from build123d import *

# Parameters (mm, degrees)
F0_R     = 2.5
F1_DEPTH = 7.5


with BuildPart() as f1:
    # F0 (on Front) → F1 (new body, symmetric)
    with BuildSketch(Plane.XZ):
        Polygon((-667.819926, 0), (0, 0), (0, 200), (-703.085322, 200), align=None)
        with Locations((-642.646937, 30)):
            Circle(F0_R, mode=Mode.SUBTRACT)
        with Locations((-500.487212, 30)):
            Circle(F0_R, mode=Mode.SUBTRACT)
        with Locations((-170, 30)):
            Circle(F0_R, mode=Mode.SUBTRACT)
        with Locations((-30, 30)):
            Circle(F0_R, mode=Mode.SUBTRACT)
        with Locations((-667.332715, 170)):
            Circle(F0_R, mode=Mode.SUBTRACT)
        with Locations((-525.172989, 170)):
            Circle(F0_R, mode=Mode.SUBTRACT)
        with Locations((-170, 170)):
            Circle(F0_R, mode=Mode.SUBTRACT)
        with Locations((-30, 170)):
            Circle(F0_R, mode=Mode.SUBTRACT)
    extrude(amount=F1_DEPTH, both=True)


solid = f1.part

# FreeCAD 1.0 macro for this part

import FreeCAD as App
import Part
import Sketcher

V = App.Vector
Q = App.Units.Quantity

doc = App.newDocument("Part")
body = doc.addObject("PartDesign::Body", "Body")

# Sketch on XZ plane
sketch1 = body.newObject("Sketcher::SketchObject", "Sketch")
sketch1.AttachmentSupport = (doc.getObject("XZ_Plane"), [""])
sketch1.MapMode = "FlatFace"
sketch1.addGeometry([
    Part.LineSegment(V(-667.819926, 0, 0), V(0, 0, 0)),  # 0
    Part.LineSegment(V(0, 0, 0), V(0, 200, 0)),  # 1
    Part.LineSegment(V(0, 200, 0), V(-703.085322, 200, 0)),  # 2
    Part.LineSegment(V(-703.085322, 200, 0), V(-667.819926, 0, 0)),  # 3
    Part.Circle(V(-642.646937, 30, 0), V(0, 0, 1), 2.5),  # 4
    Part.Circle(V(-500.487212, 30, 0), V(0, 0, 1), 2.5),  # 5
    Part.Circle(V(-170, 30, 0), V(0, 0, 1), 2.5),  # 6
    Part.Circle(V(-30, 30, 0), V(0, 0, 1), 2.5),  # 7
    Part.Circle(V(-667.332715, 170, 0), V(0, 0, 1), 2.5),  # 8
    Part.Circle(V(-525.172989, 170, 0), V(0, 0, 1), 2.5),  # 9
    Part.Circle(V(-170, 170, 0), V(0, 0, 1), 2.5),  # 10
    Part.Circle(V(-30, 170, 0), V(0, 0, 1), 2.5),  # 11
], False)
sketch1.addConstraint([
    Sketcher.Constraint("Coincident", 0, 2, 1, 1),
    Sketcher.Constraint("Coincident", 1, 2, 2, 1),
    Sketcher.Constraint("Coincident", 2, 2, 3, 1),
    Sketcher.Constraint("Coincident", 3, 2, 0, 1),
    Sketcher.Constraint("Horizontal", 0),
    Sketcher.Constraint("Vertical", 1),
    Sketcher.Constraint("Horizontal", 2),
    Sketcher.Constraint("Coincident", 0, 2, -1, 1),
    Sketcher.Constraint("Equal", 4, 5),
    Sketcher.Constraint("Equal", 5, 6),
    Sketcher.Constraint("Equal", 6, 7),
    Sketcher.Constraint("Equal", 7, 8),
    Sketcher.Constraint("Equal", 8, 9),
    Sketcher.Constraint("Equal", 9, 10),
    Sketcher.Constraint("Equal", 10, 11),
    Sketcher.Constraint("Horizontal", 4, 3, 5, 3),
    Sketcher.Constraint("Horizontal", 5, 3, 6, 3),
    Sketcher.Constraint("Horizontal", 6, 3, 7, 3),
    Sketcher.Constraint("Horizontal", 8, 3, 9, 3),
    Sketcher.Constraint("Horizontal", 9, 3, 10, 3),
    Sketcher.Constraint("Horizontal", 10, 3, 11, 3),
    Sketcher.Constraint("Vertical", 6, 3, 10, 3),
    Sketcher.Constraint("Vertical", 7, 3, 11, 3),
    Sketcher.Constraint("Diameter", 4, Q("5 mm")),
    Sketcher.Constraint("DistanceY", 1, 1, 1, 2, Q("200 mm")),
    Sketcher.Constraint("Angle", 3, Q("-80 deg")),
    Sketcher.Constraint("DistanceY", -1, 1, 4, 3, Q("30 mm")),
    Sketcher.Constraint("DistanceX", 6, 3, -1, 1, Q("170 mm")),
    Sketcher.Constraint("DistanceX", 7, 3, -1, 1, Q("30 mm")),
    Sketcher.Constraint("DistanceY", -1, 1, 8, 3, Q("170 mm")),
    Sketcher.Constraint("DistanceX", 2, 2, 2, 1, Q("703.085322 mm")),
    Sketcher.Constraint("DistanceX", 5, 3, -1, 1, Q("500.487212 mm")),
    Sketcher.Constraint("DistanceX", 9, 3, -1, 1, Q("525.172989 mm")),
    Sketcher.Constraint("DistanceX", 8, 3, 4, 3, Q("24.685778 mm")),
    Sketcher.Constraint("DistanceX", 3, 2, 4, 3, Q("25.172989 mm")),
])
pad1 = body.newObject("PartDesign::Pad", "Pad")
pad1.Profile = sketch1
pad1.Length = 15
pad1.Midplane = True

doc.recompute()
